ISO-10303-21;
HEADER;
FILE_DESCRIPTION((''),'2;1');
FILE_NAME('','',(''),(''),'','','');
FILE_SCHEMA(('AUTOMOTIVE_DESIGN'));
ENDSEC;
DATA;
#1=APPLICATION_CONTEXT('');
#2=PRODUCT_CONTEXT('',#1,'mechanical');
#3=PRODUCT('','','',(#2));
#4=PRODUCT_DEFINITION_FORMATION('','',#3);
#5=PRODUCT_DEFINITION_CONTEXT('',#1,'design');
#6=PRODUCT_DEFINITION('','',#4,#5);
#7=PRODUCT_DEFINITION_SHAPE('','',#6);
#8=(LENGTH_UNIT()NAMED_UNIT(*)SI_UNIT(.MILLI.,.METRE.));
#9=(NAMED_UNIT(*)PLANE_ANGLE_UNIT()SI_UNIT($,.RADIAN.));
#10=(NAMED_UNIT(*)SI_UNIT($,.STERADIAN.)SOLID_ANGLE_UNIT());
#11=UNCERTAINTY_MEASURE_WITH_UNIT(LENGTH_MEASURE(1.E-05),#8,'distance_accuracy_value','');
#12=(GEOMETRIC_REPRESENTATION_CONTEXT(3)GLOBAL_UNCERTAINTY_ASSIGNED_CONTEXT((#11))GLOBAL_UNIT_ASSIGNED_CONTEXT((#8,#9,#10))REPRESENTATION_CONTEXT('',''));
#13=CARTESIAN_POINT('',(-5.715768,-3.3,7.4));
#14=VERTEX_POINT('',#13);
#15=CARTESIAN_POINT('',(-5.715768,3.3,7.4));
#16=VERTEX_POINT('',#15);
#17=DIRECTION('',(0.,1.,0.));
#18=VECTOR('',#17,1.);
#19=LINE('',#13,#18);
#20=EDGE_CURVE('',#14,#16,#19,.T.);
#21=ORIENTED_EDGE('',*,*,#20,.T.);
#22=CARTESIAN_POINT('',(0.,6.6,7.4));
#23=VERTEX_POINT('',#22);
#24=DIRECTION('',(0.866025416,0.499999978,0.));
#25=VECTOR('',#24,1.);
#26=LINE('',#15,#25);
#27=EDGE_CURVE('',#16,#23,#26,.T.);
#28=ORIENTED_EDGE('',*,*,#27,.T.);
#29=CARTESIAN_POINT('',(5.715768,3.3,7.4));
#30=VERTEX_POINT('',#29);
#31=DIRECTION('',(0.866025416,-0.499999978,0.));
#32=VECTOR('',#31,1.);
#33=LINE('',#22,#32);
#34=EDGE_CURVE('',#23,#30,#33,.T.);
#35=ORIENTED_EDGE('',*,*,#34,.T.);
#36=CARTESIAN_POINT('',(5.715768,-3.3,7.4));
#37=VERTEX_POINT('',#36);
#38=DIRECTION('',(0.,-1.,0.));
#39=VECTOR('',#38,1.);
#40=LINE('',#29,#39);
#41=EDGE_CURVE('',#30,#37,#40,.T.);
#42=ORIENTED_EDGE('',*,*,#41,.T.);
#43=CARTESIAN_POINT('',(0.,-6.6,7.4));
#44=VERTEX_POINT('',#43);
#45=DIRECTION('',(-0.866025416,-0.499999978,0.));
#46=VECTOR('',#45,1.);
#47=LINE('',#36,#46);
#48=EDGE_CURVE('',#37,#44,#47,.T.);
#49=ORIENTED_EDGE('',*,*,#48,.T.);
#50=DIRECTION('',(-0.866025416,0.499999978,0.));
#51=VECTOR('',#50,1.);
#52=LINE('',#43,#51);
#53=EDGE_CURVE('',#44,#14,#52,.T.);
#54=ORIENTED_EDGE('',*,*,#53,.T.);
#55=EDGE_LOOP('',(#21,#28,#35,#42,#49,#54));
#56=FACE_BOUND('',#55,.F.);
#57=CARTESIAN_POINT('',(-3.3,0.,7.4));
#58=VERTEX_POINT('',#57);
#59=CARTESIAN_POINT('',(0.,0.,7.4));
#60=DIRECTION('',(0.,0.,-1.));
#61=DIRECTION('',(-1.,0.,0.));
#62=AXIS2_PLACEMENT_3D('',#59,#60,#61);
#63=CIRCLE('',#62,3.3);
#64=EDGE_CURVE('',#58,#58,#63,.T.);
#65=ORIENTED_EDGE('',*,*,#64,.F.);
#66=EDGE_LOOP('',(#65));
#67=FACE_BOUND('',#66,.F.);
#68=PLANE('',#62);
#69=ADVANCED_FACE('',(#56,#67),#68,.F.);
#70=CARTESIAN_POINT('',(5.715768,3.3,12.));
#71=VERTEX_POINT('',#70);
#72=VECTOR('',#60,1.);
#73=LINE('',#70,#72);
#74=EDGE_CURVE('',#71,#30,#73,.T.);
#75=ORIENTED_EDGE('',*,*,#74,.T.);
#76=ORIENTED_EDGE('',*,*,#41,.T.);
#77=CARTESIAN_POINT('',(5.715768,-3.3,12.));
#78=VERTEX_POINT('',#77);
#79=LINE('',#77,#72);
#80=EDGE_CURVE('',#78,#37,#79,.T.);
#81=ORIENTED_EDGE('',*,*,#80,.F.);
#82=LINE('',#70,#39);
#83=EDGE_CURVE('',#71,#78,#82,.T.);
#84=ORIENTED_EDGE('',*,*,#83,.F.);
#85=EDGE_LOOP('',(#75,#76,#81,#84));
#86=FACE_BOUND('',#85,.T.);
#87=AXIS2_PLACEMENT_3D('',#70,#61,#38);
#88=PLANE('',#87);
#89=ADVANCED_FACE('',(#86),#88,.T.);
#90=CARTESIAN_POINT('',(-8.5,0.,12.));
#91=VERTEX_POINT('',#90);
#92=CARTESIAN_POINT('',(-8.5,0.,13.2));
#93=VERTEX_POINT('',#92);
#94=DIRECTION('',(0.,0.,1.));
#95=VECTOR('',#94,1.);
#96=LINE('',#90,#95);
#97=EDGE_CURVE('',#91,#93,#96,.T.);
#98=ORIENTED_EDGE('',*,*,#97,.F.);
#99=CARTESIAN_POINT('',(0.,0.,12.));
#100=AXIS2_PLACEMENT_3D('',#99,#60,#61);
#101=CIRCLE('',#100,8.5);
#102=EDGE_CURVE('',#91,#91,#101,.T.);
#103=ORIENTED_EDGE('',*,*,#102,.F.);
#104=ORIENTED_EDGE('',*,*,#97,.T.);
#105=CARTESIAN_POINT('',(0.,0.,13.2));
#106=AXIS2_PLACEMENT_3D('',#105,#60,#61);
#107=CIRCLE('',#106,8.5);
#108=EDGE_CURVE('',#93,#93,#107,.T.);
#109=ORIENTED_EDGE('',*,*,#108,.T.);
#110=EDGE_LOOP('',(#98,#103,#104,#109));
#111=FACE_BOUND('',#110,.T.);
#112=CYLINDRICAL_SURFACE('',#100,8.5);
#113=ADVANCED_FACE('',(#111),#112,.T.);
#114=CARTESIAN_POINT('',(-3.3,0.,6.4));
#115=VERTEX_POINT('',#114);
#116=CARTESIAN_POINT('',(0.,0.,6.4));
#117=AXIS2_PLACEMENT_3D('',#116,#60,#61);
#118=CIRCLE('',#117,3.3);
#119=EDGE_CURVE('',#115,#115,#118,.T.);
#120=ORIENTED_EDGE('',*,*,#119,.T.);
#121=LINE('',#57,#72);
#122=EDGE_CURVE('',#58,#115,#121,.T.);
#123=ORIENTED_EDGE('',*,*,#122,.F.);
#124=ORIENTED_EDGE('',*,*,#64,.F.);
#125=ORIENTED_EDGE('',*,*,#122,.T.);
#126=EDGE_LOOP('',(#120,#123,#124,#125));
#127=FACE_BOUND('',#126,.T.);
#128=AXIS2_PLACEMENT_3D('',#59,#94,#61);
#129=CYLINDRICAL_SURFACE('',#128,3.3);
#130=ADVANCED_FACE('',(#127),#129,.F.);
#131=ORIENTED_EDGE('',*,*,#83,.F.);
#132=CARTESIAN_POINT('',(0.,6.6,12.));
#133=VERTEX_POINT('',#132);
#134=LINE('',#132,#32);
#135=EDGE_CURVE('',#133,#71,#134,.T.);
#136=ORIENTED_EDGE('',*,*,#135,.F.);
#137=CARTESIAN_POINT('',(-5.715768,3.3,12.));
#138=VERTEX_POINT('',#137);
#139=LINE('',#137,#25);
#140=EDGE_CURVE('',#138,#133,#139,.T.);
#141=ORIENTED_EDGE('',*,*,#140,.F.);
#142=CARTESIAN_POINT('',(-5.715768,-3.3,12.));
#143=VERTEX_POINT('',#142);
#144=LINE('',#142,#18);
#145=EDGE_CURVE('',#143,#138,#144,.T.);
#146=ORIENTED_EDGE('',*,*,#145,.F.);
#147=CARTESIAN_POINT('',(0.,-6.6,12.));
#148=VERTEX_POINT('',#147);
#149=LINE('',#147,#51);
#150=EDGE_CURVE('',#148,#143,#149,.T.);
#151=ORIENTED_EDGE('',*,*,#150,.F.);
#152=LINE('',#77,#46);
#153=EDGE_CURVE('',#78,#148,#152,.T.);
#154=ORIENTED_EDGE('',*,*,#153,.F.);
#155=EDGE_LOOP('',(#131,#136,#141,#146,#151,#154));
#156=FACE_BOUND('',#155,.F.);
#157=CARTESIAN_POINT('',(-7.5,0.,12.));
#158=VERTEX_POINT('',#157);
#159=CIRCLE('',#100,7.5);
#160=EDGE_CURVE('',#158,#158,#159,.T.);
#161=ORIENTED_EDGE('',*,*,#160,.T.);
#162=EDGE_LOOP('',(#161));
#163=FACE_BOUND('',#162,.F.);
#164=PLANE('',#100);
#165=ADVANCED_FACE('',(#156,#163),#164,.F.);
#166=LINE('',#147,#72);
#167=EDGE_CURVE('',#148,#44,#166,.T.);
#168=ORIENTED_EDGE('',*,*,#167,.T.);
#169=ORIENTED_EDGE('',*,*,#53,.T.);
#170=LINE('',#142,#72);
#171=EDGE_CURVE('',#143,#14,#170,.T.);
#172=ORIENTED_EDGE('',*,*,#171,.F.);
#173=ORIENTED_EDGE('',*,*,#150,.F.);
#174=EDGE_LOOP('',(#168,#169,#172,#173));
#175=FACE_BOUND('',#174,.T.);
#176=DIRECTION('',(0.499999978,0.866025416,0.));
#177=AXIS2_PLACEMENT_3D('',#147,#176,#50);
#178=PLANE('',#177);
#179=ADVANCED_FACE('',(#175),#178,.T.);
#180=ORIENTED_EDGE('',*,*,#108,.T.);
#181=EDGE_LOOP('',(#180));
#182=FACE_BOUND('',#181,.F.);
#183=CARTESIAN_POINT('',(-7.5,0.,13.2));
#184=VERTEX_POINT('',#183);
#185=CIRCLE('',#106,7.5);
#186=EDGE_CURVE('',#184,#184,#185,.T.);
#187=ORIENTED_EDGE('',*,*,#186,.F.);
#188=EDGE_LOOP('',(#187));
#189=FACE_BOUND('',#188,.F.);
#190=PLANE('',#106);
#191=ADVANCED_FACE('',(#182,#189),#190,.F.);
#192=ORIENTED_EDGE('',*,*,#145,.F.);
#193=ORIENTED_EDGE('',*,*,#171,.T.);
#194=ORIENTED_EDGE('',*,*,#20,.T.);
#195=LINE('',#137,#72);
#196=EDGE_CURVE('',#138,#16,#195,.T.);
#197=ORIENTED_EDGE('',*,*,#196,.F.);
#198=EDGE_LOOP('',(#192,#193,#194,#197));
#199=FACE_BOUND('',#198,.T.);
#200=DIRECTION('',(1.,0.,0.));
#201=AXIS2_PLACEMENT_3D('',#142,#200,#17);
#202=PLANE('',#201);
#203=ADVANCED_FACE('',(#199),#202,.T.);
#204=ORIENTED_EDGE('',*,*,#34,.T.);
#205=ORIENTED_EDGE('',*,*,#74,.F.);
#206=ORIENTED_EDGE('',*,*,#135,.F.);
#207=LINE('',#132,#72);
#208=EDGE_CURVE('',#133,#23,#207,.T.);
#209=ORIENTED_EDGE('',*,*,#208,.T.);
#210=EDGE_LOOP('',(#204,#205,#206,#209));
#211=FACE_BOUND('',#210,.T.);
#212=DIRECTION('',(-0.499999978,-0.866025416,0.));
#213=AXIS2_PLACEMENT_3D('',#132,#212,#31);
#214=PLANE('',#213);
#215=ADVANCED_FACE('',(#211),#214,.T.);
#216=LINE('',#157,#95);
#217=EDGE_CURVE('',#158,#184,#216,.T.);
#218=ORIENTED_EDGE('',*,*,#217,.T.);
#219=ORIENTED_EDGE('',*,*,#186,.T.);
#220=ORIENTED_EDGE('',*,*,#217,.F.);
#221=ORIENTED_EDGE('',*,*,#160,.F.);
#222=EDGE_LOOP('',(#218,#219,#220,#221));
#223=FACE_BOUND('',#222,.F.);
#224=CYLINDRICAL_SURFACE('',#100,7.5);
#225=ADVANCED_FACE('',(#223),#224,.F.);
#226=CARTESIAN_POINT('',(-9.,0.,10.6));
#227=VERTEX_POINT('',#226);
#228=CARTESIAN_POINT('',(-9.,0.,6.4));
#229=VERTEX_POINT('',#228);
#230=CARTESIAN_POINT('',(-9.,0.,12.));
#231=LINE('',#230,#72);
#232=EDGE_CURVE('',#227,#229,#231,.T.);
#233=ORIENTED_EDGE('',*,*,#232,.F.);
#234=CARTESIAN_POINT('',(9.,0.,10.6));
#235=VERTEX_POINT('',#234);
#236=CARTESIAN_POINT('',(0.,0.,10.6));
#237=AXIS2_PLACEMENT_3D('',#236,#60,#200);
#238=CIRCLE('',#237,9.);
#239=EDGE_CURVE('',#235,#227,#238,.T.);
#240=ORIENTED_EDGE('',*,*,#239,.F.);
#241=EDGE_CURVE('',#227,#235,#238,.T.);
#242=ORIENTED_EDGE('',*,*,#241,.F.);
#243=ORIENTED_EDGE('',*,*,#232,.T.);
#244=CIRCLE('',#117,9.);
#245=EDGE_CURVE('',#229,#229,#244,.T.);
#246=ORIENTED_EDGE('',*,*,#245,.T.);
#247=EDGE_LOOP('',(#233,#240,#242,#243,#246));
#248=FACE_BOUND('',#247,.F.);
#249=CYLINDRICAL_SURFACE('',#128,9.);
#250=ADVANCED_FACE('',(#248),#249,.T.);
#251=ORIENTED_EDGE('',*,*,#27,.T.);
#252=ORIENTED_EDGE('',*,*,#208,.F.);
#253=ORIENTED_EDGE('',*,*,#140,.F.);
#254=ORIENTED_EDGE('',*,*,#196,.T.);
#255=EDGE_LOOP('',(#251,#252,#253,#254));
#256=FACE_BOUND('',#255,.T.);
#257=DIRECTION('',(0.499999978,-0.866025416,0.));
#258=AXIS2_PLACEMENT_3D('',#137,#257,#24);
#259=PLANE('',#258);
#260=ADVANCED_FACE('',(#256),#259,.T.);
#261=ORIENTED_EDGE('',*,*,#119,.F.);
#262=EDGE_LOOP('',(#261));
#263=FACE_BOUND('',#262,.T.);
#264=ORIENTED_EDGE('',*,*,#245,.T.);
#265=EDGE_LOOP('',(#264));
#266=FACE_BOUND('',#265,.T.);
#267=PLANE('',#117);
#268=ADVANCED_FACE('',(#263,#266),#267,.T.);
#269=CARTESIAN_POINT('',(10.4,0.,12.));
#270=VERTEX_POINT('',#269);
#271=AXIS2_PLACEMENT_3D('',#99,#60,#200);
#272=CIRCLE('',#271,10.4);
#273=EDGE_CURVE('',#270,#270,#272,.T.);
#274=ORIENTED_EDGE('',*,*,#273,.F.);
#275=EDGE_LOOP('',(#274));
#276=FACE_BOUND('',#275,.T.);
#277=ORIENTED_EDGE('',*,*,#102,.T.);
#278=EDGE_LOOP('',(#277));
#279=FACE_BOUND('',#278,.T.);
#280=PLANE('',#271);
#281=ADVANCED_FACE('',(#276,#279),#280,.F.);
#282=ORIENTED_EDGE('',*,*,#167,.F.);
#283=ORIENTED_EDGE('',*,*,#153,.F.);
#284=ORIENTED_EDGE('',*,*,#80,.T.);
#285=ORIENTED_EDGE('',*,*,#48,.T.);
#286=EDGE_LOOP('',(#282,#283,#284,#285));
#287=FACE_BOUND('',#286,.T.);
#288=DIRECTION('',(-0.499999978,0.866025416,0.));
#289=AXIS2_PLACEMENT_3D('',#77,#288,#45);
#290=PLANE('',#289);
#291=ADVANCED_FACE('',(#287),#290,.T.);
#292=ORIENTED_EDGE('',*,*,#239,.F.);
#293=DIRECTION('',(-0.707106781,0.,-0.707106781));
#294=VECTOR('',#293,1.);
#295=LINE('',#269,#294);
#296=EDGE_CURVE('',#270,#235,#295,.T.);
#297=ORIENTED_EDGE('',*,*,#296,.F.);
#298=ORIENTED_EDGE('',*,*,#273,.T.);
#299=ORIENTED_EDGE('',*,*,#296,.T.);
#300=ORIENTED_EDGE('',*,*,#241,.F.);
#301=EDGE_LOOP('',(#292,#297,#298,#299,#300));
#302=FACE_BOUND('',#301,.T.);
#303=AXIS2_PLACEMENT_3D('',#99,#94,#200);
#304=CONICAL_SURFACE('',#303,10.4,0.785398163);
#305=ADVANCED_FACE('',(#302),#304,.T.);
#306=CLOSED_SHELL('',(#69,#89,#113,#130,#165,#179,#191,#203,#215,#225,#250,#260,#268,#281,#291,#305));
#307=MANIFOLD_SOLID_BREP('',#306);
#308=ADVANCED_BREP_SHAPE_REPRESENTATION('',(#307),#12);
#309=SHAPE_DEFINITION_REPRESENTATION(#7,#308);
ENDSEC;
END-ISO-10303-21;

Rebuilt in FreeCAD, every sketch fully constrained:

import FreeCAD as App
import Part
import Sketcher

V = App.Vector
Q = App.Units.Quantity


def add_polygon(sketch, points):
    """Adds a closed chain of lines whose ends are joined by coincident constraints."""
    first, n = sketch.GeometryCount, len(points)
    for a, b in zip(points, points[1:] + points[:1]):
        sketch.addGeometry(Part.LineSegment(App.Vector(*a, 0), App.Vector(*b, 0)), False)
    for i in range(n):
        sketch.addConstraint(Sketcher.Constraint("Coincident", first + i, 2, first + (i + 1) % n, 1))

doc = App.newDocument("Part")
params = doc.addObject("Spreadsheet::Sheet", "Params")
for row, (alias, value) in enumerate([
    ("sketch1_diameter", "18 mm"),
    ("sketch1_diameter2", "6.6 mm"),
    ("pad1_length", "1 mm"),
    ("sketch2_diameter", "17 mm"),
    ("sketch2_diameter2", "15 mm"),
    ("pad2_length", "1.2 mm"),
    ("sketch3_width", "1.4 mm"),
    ("revolution_angle", "360 deg"),
    ("sketch4_diameter", "18 mm"),
    ("sketch4_height", "6.6 mm"),
    ("sketch4_length", "6.6 mm"),
    ("pad3_length", "4.6 mm"),
], start=1):
    params.set(f"A{row}", alias)
    params.set(f"B{row}", "=" + value)
    params.setAlias(f"B{row}", alias)

body = doc.addObject("PartDesign::Body", "Body")

sketch1 = body.newObject("Sketcher::SketchObject", "Sketch")
sketch1.AttachmentSupport = (doc.getObject("XY_Plane"), [""])
sketch1.MapMode = "FlatFace"
sketch1.addGeometry(Part.Circle(V(0, 0, 0), V(0, 0, 1), 9), False)
sketch1.addGeometry(Part.Circle(V(0, 0, 0), V(0, 0, 1), 3.3), False)
sketch1.addConstraint(Sketcher.Constraint("Coincident", 0, 3, -1, 1))
sketch1.addConstraint(Sketcher.Constraint("Coincident", 1, 3, -1, 1))
sketch1.addConstraint(Sketcher.Constraint("Diameter", 0, Q("18 mm")))
sketch1.addConstraint(Sketcher.Constraint("Diameter", 1, Q("6.6 mm")))
sketch1.setExpression("Constraints[2]", "Params.sketch1_diameter")
sketch1.setExpression("Constraints[3]", "Params.sketch1_diameter2")
pad1 = body.newObject("PartDesign::Pad", "Pad")
pad1.Profile = sketch1
pad1.setExpression("Length", "Params.pad1_length")
body2 = doc.addObject("PartDesign::Body", "Body001")
doc.recompute()

body.Placement = App.Placement(V(0, 0, 4.6), App.Rotation(V(0, 0, 1), 0))
boolean = body2.newObject("PartDesign::Boolean", "Boolean")
boolean.Type = "Fuse"
boolean.addObjects([body])
body3 = doc.addObject("PartDesign::Body", "Body002")

sketch2 = body3.newObject("Sketcher::SketchObject", "Sketch001")
sketch2.AttachmentSupport = (doc.getObject("XY_Plane002"), [""])
sketch2.MapMode = "FlatFace"
sketch2.addGeometry(Part.Circle(V(0, 0, 0), V(0, 0, 1), 8), False)
sketch2.addGeometry(Part.Circle(V(0, 0, 0), V(0, 0, 1), 8), False)
sketch2.addConstraint(Sketcher.Constraint("Coincident", 0, 3, -1, 1))
sketch2.addConstraint(Sketcher.Constraint("Coincident", 1, 3, -1, 1))
sketch2.addConstraint(Sketcher.Constraint("Diameter", 0, Q("17 mm")))
sketch2.addConstraint(Sketcher.Constraint("Diameter", 1, Q("15 mm")))
sketch2.setExpression("Constraints[2]", "Params.sketch2_diameter")
sketch2.setExpression("Constraints[3]", "Params.sketch2_diameter2")
pad2 = body3.newObject("PartDesign::Pad", "Pad001")
pad2.Profile = sketch2
pad2.setExpression("Length", "Params.pad2_length")
pad2.Reversed = True
body4 = doc.addObject("PartDesign::Body", "Body003")

sketch3 = body4.newObject("Sketcher::SketchObject", "Sketch002")
sketch3.AttachmentSupport = (doc.getObject("XZ_Plane003"), [""])
sketch3.MapMode = "FlatFace"
add_polygon(sketch3, [(-9, 0), (-9, 1.4), (-10.4, 0)])
sketch3.addConstraint(Sketcher.Constraint("Vertical", 0))
sketch3.addConstraint(Sketcher.Constraint("Horizontal", 2))
sketch3.addConstraint(Sketcher.Constraint("PointOnObject", 1, 2, -1))
sketch3.addConstraint(Sketcher.Constraint("Equal", 2, 0))
sketch3.addConstraint(Sketcher.Constraint("DistanceX", 2, 1, 2, 2, Q("1.4 mm")))
sketch3.addConstraint(Sketcher.Constraint("DistanceX", 0, 2, -1, 1, Q("9 mm")))
sketch3.setExpression("Constraints[7]", "Params.sketch3_width")
revolution = body4.newObject("PartDesign::Revolution", "Revolution")
revolution.Profile = sketch3
revolution.ReferenceAxis = (sketch3, ["V_Axis"])
revolution.setExpression("Angle", "Params.revolution_angle")
body5 = doc.addObject("PartDesign::Body", "Body004")

sketch4 = body5.newObject("Sketcher::SketchObject", "Sketch003")
sketch4.AttachmentSupport = (doc.getObject("XY_Plane004"), [""])
sketch4.MapMode = "FlatFace"
sketch4.addGeometry(Part.Circle(V(0, 0, 0), V(0, 0, 1), 9), False)
add_polygon(sketch4, [(0, 7), (6, 3), (6, -3), (0, -7), (-6, -3), (-6, 3)])
sketch4.addConstraint(Sketcher.Constraint("Vertical", 2))
sketch4.addConstraint(Sketcher.Constraint("Vertical", 5))
sketch4.addConstraint(Sketcher.Constraint("Coincident", 0, 3, -1, 1))
sketch4.addConstraint(Sketcher.Constraint("Symmetric", 1, 2, 4, 2, -1, 1))
sketch4.addConstraint(Sketcher.Constraint("Symmetric", 3, 2, 6, 2, -1, 1))
sketch4.addConstraint(Sketcher.Constraint("PointOnObject", 3, 2, -2))
sketch4.addConstraint(Sketcher.Constraint("Parallel", 3, 6))
sketch4.addConstraint(Sketcher.Constraint("Horizontal", 2, 2, 4, 2))
sketch4.addConstraint(Sketcher.Constraint("Diameter", 0, Q("18 mm")))
sketch4.addConstraint(Sketcher.Constraint("Angle", 1, Q("-29.999999 deg")))
sketch4.addConstraint(Sketcher.Constraint("DistanceY", 2, 2, 2, 1, Q("6.6 mm")))
sketch4.addConstraint(Sketcher.Constraint("Distance", 1, Q("6.6 mm")))
sketch4.setExpression("Constraints[14]", "Params.sketch4_diameter")
sketch4.setExpression("Constraints[16]", "Params.sketch4_height")
sketch4.setExpression("Constraints[17]", "Params.sketch4_length")
pad3 = body5.newObject("PartDesign::Pad", "Pad002")
pad3.Profile = sketch4
pad3.setExpression("Length", "Params.pad3_length")
doc.recompute()

boolean2 = body5.newObject("PartDesign::Boolean", "Boolean001")
boolean2.Type = "Fuse"
boolean2.addObjects([body2])
doc.recompute()

boolean3 = body5.newObject("PartDesign::Boolean", "Boolean002")
boolean3.Type = "Fuse"
boolean3.addObjects([body3])
doc.recompute()

boolean4 = body5.newObject("PartDesign::Boolean", "Boolean003")
boolean4.Type = "Fuse"
boolean4.addObjects([body4])
body6 = doc.addObject("PartDesign::Body", "Body005")
doc.recompute()

body5.Placement = App.Placement(V(0, 0, 12), App.Rotation(V(0, 1, 0), 180))
boolean5 = body6.newObject("PartDesign::Boolean", "Boolean004")
boolean5.Type = "Fuse"
boolean5.addObjects([body5])

doc.recompute()
